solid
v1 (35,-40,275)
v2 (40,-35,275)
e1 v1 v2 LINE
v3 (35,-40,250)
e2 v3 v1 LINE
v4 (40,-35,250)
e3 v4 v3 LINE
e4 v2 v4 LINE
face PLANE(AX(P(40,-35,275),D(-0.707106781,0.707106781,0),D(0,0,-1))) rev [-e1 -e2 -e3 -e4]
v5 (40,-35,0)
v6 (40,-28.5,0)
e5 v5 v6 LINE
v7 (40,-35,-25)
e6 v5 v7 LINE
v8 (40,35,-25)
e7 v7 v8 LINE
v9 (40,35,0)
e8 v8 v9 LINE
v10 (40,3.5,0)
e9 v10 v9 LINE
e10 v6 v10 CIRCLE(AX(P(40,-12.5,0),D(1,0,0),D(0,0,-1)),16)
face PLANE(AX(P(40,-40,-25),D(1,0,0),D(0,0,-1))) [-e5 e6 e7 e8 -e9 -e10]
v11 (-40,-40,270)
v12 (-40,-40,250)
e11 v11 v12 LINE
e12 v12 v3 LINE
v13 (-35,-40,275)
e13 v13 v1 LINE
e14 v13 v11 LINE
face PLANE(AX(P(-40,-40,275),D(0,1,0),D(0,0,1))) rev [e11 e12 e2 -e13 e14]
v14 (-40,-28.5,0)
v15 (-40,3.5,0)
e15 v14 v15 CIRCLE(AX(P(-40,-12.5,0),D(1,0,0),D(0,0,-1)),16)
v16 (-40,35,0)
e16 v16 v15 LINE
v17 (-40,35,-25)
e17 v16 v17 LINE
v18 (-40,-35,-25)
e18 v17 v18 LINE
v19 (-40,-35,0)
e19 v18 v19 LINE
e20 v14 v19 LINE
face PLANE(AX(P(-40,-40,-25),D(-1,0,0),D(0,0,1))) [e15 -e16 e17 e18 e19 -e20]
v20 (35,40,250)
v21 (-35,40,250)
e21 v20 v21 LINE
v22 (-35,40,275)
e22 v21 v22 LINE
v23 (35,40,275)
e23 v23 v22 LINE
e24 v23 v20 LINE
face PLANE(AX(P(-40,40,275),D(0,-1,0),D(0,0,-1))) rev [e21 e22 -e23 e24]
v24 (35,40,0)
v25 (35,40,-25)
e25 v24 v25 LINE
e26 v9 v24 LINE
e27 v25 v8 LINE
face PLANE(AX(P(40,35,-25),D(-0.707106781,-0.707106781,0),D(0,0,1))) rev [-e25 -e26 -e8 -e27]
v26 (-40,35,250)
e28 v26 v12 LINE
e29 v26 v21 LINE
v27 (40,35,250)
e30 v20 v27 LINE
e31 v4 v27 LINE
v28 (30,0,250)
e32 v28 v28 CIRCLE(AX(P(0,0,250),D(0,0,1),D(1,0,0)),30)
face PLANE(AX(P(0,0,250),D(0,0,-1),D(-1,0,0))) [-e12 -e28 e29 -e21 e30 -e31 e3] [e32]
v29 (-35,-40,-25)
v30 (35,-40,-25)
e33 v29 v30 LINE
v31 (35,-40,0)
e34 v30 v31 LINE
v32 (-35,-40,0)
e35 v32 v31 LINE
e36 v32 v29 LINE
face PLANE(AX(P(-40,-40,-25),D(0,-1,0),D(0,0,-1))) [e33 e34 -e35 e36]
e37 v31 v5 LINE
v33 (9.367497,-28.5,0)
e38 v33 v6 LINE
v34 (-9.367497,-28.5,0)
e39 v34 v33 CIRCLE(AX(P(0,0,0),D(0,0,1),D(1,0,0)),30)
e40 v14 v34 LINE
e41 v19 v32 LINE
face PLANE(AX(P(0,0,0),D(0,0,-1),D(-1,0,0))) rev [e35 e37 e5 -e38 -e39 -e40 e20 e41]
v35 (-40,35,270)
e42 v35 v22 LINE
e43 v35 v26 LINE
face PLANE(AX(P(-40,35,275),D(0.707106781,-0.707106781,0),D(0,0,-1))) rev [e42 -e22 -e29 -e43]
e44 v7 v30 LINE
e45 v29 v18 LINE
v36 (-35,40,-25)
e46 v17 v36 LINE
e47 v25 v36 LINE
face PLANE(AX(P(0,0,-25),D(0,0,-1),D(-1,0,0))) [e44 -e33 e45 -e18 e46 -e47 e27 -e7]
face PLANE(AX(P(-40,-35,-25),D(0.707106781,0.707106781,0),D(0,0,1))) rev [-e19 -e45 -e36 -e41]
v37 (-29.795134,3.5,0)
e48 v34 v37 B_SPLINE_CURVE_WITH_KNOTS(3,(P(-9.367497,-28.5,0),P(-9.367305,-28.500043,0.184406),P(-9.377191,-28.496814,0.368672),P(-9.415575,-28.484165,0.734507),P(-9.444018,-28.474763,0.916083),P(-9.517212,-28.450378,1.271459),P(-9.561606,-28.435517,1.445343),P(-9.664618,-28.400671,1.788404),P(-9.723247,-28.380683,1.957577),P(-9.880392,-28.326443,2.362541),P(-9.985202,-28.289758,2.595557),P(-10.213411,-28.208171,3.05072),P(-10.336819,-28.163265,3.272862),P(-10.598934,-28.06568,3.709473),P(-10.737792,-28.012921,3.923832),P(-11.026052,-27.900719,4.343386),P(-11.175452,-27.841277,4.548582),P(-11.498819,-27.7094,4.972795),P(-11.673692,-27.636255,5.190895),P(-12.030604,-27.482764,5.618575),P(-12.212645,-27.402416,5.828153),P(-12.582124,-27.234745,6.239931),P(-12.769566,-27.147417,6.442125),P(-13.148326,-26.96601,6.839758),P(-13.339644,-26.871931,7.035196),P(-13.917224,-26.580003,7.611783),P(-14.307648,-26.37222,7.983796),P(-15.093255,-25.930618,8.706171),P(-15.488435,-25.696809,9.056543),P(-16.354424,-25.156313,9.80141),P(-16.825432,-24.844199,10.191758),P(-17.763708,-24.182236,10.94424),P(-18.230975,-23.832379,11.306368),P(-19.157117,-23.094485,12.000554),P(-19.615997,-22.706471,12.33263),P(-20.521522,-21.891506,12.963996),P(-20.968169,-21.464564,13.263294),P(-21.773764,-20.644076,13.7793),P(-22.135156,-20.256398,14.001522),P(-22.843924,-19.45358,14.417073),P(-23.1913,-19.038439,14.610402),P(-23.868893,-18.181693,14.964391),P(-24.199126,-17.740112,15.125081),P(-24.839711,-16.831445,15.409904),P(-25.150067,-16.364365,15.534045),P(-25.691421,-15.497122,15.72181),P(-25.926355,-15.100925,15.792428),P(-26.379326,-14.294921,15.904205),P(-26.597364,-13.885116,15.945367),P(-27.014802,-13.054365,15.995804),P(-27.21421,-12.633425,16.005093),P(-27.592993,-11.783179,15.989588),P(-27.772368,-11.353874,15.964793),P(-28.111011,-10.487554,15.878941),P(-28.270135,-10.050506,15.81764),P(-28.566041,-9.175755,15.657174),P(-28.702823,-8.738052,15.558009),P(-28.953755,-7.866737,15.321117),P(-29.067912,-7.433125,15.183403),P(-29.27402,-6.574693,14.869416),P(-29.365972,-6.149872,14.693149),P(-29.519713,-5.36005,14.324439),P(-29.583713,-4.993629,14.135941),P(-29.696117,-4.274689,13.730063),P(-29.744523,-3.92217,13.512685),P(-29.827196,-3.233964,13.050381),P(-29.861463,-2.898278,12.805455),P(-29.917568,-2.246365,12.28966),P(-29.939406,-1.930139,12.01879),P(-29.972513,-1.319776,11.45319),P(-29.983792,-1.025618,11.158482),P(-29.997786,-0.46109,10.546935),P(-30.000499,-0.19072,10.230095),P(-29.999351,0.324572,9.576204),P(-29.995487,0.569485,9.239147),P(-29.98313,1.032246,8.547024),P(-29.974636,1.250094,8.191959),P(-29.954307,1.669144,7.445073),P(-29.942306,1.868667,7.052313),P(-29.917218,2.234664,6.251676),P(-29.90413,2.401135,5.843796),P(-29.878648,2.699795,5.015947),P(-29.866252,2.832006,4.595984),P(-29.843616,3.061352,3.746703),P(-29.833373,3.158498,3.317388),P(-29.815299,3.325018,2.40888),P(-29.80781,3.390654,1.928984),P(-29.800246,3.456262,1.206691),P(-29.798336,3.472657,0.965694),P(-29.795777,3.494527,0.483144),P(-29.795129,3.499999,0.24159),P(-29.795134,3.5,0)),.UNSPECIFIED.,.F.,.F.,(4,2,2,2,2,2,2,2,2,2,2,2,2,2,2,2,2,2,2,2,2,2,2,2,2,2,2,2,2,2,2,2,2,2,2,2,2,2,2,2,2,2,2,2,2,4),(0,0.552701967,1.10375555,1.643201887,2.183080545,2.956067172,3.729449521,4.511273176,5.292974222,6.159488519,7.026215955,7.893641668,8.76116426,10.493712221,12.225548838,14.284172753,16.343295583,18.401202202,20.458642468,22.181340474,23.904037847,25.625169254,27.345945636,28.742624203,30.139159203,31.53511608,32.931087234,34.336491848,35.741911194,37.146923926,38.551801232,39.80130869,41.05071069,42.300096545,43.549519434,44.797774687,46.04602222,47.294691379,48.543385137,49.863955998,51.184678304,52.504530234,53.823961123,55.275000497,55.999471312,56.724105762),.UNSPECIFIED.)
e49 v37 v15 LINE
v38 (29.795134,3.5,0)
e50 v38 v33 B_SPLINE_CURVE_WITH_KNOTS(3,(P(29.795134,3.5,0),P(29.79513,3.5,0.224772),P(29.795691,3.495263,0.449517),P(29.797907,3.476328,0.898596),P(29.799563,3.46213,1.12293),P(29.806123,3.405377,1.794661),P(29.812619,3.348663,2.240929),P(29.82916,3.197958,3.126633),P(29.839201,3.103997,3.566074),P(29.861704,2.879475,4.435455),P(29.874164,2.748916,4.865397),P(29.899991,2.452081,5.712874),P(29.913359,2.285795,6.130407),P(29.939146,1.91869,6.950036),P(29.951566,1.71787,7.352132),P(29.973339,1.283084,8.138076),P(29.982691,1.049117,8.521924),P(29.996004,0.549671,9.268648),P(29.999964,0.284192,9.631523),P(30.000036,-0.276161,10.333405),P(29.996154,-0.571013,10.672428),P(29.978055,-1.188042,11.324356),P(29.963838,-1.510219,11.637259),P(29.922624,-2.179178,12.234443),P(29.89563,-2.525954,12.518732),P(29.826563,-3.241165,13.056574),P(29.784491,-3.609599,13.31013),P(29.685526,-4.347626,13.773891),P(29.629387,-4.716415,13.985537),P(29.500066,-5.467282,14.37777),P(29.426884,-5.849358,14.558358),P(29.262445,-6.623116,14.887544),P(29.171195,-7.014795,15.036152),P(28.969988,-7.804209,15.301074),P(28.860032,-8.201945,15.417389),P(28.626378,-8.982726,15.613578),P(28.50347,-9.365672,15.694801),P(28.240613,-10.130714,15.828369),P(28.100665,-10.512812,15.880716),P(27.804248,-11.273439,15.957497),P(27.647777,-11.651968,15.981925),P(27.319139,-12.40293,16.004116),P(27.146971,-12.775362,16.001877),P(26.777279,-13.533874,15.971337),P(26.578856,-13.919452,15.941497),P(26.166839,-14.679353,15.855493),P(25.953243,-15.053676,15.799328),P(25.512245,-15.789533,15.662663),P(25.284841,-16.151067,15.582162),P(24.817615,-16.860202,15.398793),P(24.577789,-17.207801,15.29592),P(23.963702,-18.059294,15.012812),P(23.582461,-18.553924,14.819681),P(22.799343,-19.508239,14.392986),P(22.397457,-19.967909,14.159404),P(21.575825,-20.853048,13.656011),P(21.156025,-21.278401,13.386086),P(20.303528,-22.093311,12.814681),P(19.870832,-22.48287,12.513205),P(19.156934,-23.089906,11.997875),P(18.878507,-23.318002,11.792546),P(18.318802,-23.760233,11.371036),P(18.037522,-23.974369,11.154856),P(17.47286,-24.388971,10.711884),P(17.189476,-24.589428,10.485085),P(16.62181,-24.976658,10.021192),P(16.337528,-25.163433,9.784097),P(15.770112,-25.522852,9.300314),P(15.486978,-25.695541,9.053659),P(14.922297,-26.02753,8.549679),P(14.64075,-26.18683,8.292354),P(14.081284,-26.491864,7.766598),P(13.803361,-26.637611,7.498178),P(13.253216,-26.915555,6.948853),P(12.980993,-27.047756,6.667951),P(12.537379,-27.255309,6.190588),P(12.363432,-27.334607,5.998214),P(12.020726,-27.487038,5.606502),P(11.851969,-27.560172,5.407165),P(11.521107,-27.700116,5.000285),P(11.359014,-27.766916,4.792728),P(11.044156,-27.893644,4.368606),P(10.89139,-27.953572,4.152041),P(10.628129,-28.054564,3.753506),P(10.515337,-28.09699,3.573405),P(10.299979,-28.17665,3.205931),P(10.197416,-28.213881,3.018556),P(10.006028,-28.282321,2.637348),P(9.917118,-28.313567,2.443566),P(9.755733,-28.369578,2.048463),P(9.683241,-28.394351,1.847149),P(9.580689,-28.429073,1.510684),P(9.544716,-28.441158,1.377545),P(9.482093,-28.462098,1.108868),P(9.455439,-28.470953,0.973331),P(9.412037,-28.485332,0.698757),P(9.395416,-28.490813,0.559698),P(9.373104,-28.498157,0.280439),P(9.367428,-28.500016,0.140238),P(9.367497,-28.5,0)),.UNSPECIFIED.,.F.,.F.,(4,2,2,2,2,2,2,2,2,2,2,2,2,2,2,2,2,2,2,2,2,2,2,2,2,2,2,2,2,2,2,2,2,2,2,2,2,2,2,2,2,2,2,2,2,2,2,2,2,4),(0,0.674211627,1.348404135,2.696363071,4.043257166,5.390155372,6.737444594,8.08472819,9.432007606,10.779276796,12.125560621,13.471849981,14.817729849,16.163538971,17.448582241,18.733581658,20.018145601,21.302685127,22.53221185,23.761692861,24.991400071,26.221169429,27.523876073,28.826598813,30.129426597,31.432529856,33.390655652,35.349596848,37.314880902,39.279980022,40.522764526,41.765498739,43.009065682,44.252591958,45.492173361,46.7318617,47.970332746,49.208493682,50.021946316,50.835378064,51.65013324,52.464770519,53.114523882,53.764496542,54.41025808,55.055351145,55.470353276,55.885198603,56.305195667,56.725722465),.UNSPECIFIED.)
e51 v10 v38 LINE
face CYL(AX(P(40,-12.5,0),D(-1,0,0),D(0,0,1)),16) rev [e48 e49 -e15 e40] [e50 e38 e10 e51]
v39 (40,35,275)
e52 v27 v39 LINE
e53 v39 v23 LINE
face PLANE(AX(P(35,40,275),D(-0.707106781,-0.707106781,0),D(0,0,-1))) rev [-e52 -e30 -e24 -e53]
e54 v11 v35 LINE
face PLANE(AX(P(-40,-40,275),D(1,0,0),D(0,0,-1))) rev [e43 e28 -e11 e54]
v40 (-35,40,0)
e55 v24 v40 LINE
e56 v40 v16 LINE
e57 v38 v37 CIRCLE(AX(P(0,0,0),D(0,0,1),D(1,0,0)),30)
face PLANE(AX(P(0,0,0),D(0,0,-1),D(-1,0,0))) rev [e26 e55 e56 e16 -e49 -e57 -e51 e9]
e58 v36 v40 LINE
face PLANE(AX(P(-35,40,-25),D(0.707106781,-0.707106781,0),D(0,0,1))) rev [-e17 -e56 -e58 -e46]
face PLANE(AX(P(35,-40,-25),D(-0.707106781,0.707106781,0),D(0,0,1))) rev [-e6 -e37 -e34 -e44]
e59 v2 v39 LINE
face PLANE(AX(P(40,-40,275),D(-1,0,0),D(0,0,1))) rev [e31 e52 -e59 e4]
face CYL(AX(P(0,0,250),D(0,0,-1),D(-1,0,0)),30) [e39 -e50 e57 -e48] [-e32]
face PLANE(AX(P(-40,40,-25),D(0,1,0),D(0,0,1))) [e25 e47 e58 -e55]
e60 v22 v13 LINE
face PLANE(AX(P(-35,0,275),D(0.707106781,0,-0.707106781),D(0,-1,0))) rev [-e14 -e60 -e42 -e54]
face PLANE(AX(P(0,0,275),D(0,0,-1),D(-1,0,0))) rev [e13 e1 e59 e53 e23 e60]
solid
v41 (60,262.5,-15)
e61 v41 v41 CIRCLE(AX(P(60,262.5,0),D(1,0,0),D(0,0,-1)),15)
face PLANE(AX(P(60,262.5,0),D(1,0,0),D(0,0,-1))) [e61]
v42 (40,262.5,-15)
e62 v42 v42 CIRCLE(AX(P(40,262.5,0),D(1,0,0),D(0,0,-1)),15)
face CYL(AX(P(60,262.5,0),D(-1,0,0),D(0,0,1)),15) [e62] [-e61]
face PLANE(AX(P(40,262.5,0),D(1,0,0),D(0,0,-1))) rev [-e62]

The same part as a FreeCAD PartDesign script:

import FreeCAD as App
import Part
import Sketcher

V = App.Vector
Q = App.Units.Quantity


def edges_at(feature, points):
    """Names of the edges that pass closest to the given points."""
    edges = feature.Shape.Edges
    near = lambda p: min(range(len(edges)), key=lambda i: edges[i].distToShape(Part.Vertex(*p))[0])
    return sorted({f"Edge{near(p) + 1}" for p in points})


def add_polygon(sketch, points):
    """Adds a closed chain of lines whose ends are joined by coincident constraints."""
    first, n = sketch.GeometryCount, len(points)
    for a, b in zip(points, points[1:] + points[:1]):
        sketch.addGeometry(Part.LineSegment(App.Vector(*a, 0), App.Vector(*b, 0)), False)
    for i in range(n):
        sketch.addConstraint(Sketcher.Constraint("Coincident", first + i, 2, first + (i + 1) % n, 1))

doc = App.newDocument("Part")
body = doc.addObject("PartDesign::Body", "Body")

# Sketch on XY plane
sketch1 = doc.addObject("Sketcher::SketchObject", "Sketch")
body.addObject(sketch1)
sketch1.AttachmentSupport = (doc.XY_Plane, [""])
sketch1.MapMode = "FlatFace"
sketch1.addGeometry(Part.Circle(V(0, 0, 0), V(0, 0, 1), 30), False)
sketch1.addConstraint([
    Sketcher.Constraint("Coincident", 0, 3, -1, 1),
    Sketcher.Constraint("Diameter", 0, Q("60 mm")),
])
pad1 = doc.addObject("PartDesign::Pad", "Pad")
body.addObject(pad1)
pad1.Profile = sketch1
pad1.Length = 250

# Sketch on XY plane
sketch2 = doc.addObject("Sketcher::SketchObject", "Sketch001")
body.addObject(sketch2)
sketch2.AttachmentSupport = (doc.XY_Plane, [""])
sketch2.MapMode = "FlatFace"
add_polygon(sketch2, [(-40, 40), (-40, -40), (40, -40), (40, 40)])  # lines 0-3
sketch2.addConstraint([
    Sketcher.Constraint("Vertical", 0),
    Sketcher.Constraint("Horizontal", 1),
    Sketcher.Constraint("Vertical", 2),
    Sketcher.Constraint("Horizontal", 3),
    Sketcher.Constraint("Symmetric", 0, 2, 2, 2, -1, 1),
    Sketcher.Constraint("Equal", 3, 0),
    Sketcher.Constraint("DistanceX", 1, 1, 1, 2, Q("80 mm")),
])
pad2 = doc.addObject("PartDesign::Pad", "Pad001")
body.addObject(pad2)
pad2.Profile = sketch2
pad2.Length = 25
pad2.Reversed = True

# Sketch on YZ plane
sketch3 = doc.addObject("Sketcher::SketchObject", "Sketch002")
body.addObject(sketch3)
sketch3.AttachmentSupport = (doc.YZ_Plane, [""])
sketch3.MapMode = "FlatFace"
sketch3.AttachmentOffset = App.Placement(V(0, 0, -40), App.Rotation())
sketch3.addGeometry(Part.Circle(V(-12, 0, 0), V(0, 0, 1), 16), False)
sketch3.addConstraint([
    Sketcher.Constraint("PointOnObject", 0, 3, -1),
    Sketcher.Constraint("Diameter", 0, Q("32 mm")),
    Sketcher.Constraint("DistanceX", 0, 3, -1, 1, Q("12.5 mm")),
])
pocket1 = doc.addObject("PartDesign::Pocket", "Pocket")
body.addObject(pocket1)
pocket1.Profile = sketch3
pocket1.Length = 80
pocket1.Reversed = True
doc.recompute()

chamfer = doc.addObject("PartDesign::Chamfer", "Chamfer")
body.addObject(chamfer)
chamfer.Base = (pocket1, edges_at(pocket1, [
    (40, 40, -12.5),
    (40, -40, -12.5),
    (-40, -40, -12.5),
    (-40, 40, -12.5),
]))
chamfer.Size = 5

# Sketch on XY plane
sketch4 = doc.addObject("Sketcher::SketchObject", "Sketch003")
body.addObject(sketch4)
sketch4.AttachmentSupport = (doc.XY_Plane, [""])
sketch4.MapMode = "FlatFace"
sketch4.AttachmentOffset = App.Placement(V(0, 0, 250), App.Rotation())
add_polygon(sketch4, [(-40, 40), (-40, -40), (40, -40), (40, 40)])  # lines 0-3
sketch4.addConstraint([
    Sketcher.Constraint("Vertical", 0),
    Sketcher.Constraint("Horizontal", 1),
    Sketcher.Constraint("Vertical", 2),
    Sketcher.Constraint("Horizontal", 3),
    Sketcher.Constraint("Symmetric", 0, 2, 2, 2, -1, 1),
    Sketcher.Constraint("Equal", 3, 0),
    Sketcher.Constraint("DistanceX", 1, 1, 1, 2, Q("80 mm")),
])
pad3 = doc.addObject("PartDesign::Pad", "Pad002")
body.addObject(pad3)
pad3.Profile = sketch4
pad3.Length = 25
doc.recompute()

chamfer2 = doc.addObject("PartDesign::Chamfer", "Chamfer001")
body.addObject(chamfer2)
chamfer2.Base = (pad3, edges_at(pad3, [
    (40, -40, 262.5),
    (40, 40, 262.5),
    (-40, 40, 262.5),
    (-40, 0, 275),
]))
chamfer2.Size = 5
body2 = doc.addObject("PartDesign::Body", "Body001")

# Sketch on YZ plane
sketch5 = doc.addObject("Sketcher::SketchObject", "Sketch004")
body2.addObject(sketch5)
sketch5.AttachmentSupport = (doc.getObject("YZ_Plane001"), [""])
sketch5.MapMode = "FlatFace"
sketch5.AttachmentOffset = App.Placement(V(0, 0, 40), App.Rotation())
sketch5.addGeometry(Part.Circle(V(262, 0, 0), V(0, 0, 1), 15), False)
sketch5.addConstraint([
    Sketcher.Constraint("PointOnObject", 0, 3, -1),
    Sketcher.Constraint("Diameter", 0, Q("30 mm")),
    Sketcher.Constraint("DistanceX", -1, 1, 0, 3, Q("262.5 mm")),
])
pad4 = doc.addObject("PartDesign::Pad", "Pad003")
body2.addObject(pad4)
pad4.Profile = sketch5
pad4.Length = 20

doc.recompute()
